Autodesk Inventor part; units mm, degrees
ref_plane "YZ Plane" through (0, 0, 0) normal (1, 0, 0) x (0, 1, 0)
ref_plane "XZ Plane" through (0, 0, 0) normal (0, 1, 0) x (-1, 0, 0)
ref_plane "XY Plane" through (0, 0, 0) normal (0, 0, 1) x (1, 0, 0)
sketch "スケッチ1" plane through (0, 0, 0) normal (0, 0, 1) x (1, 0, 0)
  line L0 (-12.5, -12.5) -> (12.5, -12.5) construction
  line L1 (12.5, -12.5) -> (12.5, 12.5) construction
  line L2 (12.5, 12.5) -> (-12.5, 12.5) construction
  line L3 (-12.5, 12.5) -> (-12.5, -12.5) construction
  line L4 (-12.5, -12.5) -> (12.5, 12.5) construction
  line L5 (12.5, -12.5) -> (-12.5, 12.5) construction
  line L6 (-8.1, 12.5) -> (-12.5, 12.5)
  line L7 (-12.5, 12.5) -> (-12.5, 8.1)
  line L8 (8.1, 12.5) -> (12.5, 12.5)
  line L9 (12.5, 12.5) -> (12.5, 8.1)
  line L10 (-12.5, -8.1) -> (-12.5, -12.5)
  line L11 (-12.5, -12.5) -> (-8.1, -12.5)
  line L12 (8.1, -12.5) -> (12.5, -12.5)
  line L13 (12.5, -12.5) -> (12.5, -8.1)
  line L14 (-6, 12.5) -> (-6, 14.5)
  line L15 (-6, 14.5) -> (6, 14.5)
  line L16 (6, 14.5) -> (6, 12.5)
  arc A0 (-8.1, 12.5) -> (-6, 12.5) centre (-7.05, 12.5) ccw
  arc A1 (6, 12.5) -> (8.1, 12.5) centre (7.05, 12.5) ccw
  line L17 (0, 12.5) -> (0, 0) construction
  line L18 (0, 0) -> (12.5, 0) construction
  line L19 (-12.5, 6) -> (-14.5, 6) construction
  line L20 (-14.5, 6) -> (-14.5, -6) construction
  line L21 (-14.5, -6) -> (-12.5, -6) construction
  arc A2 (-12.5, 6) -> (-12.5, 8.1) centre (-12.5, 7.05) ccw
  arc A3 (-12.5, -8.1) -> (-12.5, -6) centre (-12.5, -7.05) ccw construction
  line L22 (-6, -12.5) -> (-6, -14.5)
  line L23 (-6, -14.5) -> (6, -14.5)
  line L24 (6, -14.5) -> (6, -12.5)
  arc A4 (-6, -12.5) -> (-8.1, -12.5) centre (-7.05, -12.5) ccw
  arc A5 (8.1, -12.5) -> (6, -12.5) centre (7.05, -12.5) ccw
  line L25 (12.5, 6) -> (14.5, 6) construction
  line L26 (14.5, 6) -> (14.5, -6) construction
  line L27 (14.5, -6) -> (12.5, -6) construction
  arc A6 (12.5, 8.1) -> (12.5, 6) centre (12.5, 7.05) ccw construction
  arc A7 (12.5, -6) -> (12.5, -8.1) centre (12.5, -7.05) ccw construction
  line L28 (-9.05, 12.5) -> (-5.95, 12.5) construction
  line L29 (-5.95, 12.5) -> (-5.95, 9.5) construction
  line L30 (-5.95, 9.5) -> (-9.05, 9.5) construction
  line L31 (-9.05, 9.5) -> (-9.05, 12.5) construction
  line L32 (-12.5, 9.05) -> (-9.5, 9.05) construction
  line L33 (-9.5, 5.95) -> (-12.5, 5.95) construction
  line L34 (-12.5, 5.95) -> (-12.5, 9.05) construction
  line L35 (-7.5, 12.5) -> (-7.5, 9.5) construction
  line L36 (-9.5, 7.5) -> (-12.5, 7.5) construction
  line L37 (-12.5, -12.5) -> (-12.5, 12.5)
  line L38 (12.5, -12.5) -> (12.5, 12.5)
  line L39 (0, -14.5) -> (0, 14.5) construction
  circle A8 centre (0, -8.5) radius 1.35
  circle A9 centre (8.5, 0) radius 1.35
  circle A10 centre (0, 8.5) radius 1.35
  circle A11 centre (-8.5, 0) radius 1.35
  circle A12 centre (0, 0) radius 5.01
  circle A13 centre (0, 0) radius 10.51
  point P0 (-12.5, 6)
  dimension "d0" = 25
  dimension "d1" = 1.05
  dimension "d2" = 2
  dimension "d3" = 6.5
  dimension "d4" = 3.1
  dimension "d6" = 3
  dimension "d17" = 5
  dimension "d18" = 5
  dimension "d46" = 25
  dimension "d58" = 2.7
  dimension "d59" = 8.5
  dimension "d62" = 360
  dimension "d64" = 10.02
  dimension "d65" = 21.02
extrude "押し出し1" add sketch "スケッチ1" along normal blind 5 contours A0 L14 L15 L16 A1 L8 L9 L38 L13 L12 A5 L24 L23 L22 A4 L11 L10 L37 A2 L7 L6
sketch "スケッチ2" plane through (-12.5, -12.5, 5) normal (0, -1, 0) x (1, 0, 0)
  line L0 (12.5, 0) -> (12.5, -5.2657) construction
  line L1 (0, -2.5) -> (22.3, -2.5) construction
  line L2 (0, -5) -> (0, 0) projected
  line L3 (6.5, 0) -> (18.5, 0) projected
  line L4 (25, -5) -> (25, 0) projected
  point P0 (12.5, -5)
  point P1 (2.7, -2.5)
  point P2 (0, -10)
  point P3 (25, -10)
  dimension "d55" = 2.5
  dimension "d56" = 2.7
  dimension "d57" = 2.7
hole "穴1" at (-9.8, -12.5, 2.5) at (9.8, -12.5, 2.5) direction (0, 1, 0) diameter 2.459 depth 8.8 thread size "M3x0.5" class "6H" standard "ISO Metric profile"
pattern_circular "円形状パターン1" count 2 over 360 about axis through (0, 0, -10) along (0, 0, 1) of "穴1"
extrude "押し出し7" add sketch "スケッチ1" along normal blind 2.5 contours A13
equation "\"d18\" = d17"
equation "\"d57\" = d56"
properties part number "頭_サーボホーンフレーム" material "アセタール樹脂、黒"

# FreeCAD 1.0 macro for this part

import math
import FreeCAD as App
import Part
import Sketcher
from FreeCAD import Vector
Q = App.Units.Quantity

doc = App.newDocument("Part")
body = doc.addObject("PartDesign::Body", "Body")

sketch1 = doc.addObject("Sketcher::SketchObject", "Sketch")
body.addObject(sketch1)
sketch1.AttachmentSupport = (doc.XY_Plane, [""])
sketch1.MapMode = "FlatFace"
sketch1.addGeometry([
    Part.ArcOfCircle(Part.Circle(Vector(-7, 12.5, 0), Vector(0, 0, 1), 1), math.radians(180), math.radians(360)),
    Part.LineSegment(Vector(-8.1, 12.5, 0), Vector(-12.5, 12.5, 0)),
    Part.LineSegment(Vector(-12.5, 12.5, 0), Vector(-12.5, 8.1, 0)),
    Part.ArcOfCircle(Part.Circle(Vector(-12.5, 7, 0), Vector(0, 0, 1), 1), math.radians(-90), math.radians(90)),
    Part.LineSegment(Vector(-12.5, 6, 0), Vector(-12.5, -12.5, 0)),
    Part.LineSegment(Vector(-12.5, -12.5, 0), Vector(-8.1, -12.5, 0)),
    Part.ArcOfCircle(Part.Circle(Vector(-7, -12.5, 0), Vector(0, 0, 1), 1), math.radians(0), math.radians(180)),
    Part.LineSegment(Vector(-6, -12.5, 0), Vector(-6, -14.5, 0)),
    Part.LineSegment(Vector(-6, -14.5, 0), Vector(6, -14.5, 0)),
    Part.LineSegment(Vector(6, -14.5, 0), Vector(6, -12.5, 0)),
    Part.ArcOfCircle(Part.Circle(Vector(7, -12.5, 0), Vector(0, 0, 1), 1), math.radians(0), math.radians(180)),
    Part.LineSegment(Vector(8.1, -12.5, 0), Vector(12.5, -12.5, 0)),
    Part.LineSegment(Vector(12.5, -12.5, 0), Vector(12.5, 12.5, 0)),
    Part.LineSegment(Vector(12.5, 12.5, 0), Vector(8.1, 12.5, 0)),
    Part.ArcOfCircle(Part.Circle(Vector(7, 12.5, 0), Vector(0, 0, 1), 1), math.radians(180), math.radians(360)),
    Part.LineSegment(Vector(6, 12.5, 0), Vector(6, 14.5, 0)),
    Part.LineSegment(Vector(6, 14.5, 0), Vector(-6, 14.5, 0)),
    Part.LineSegment(Vector(-6, 14.5, 0), Vector(-6, 12.5, 0)),
    Part.Circle(Vector(0, 0, 0), Vector(0, 0, 1), 10.5),
], False)
sketch1.addConstraint([
    Sketcher.Constraint("Coincident", 0, 1, 1, 1),
    Sketcher.Constraint("Coincident", 1, 2, 2, 1),
    Sketcher.Constraint("Coincident", 2, 2, 3, 2),
    Sketcher.Constraint("Coincident", 3, 1, 4, 1),
    Sketcher.Constraint("Coincident", 4, 2, 5, 1),
    Sketcher.Constraint("Coincident", 5, 2, 6, 2),
    Sketcher.Constraint("Tangent", 6, 1, 7, 1),
    Sketcher.Constraint("Coincident", 7, 2, 8, 1),
    Sketcher.Constraint("Coincident", 8, 2, 9, 1),
    Sketcher.Constraint("Tangent", 9, 2, 10, 2),
    Sketcher.Constraint("Coincident", 10, 1, 11, 1),
    Sketcher.Constraint("Coincident", 11, 2, 12, 1),
    Sketcher.Constraint("Coincident", 12, 2, 13, 1),
    Sketcher.Constraint("Coincident", 13, 2, 14, 2),
    Sketcher.Constraint("Tangent", 14, 1, 15, 1),
    Sketcher.Constraint("Coincident", 15, 2, 16, 1),
    Sketcher.Constraint("Coincident", 16, 2, 17, 1),
    Sketcher.Constraint("Tangent", 17, 2, 0, 2),
    Sketcher.Constraint("Horizontal", 1),
    Sketcher.Constraint("Vertical", 2),
    Sketcher.Constraint("Vertical", 4),
    Sketcher.Constraint("Horizontal", 5),
    Sketcher.Constraint("Vertical", 7),
    Sketcher.Constraint("Horizontal", 8),
    Sketcher.Constraint("Vertical", 9),
    Sketcher.Constraint("Horizontal", 11),
    Sketcher.Constraint("Vertical", 12),
    Sketcher.Constraint("Horizontal", 13),
    Sketcher.Constraint("Vertical", 15),
    Sketcher.Constraint("Horizontal", 16),
    Sketcher.Constraint("Vertical", 17),
    Sketcher.Constraint("Coincident", 18, 3, -1, 1),
    Sketcher.Constraint("Equal", 0, 3),
    Sketcher.Constraint("Equal", 3, 6),
    Sketcher.Constraint("Equal", 6, 10),
    Sketcher.Constraint("Equal", 10, 14),
    Sketcher.Constraint("Symmetric", 0, 3, 10, 3, -1, 1),
    Sketcher.Constraint("Symmetric", 6, 3, 14, 3, -1, 1),
    Sketcher.Constraint("Symmetric", 1, 2, 11, 2, -1, 1),
    Sketcher.Constraint("Symmetric", 4, 2, 12, 2, -1, 1),
    Sketcher.Constraint("Symmetric", 6, 3, 10, 3, -2),
    Sketcher.Constraint("Horizontal", 14, 3, 0, 1),
    Sketcher.Constraint("Horizontal", 10, 3, 4, 2),
    Sketcher.Constraint("Vertical", 3, 3, 1, 2),
    Sketcher.Constraint("Equal", 13, 2),
    Sketcher.Constraint("Equal", 9, 15),
    Sketcher.Constraint("Diameter", 18, Q("21.02 mm")),
    Sketcher.Constraint("DistanceY", 7, 2, 7, 1, Q("2 mm")),
    Sketcher.Constraint("DistanceY", 12, 1, 12, 2, Q("25 mm")),
    Sketcher.Constraint("Radius", 0, Q("1.05 mm")),
    Sketcher.Constraint("DistanceX", 1, 2, 12, 2, Q("25 mm")),
    Sketcher.Constraint("DistanceY", 3, 1, 1, 2, Q("6.5 mm")),
])
pad1 = doc.addObject("PartDesign::Pad", "Pad")
body.addObject(pad1)
pad1.Profile = sketch1
pad1.Length = 5

sketch2 = doc.addObject("Sketcher::SketchObject", "Sketch001")
body.addObject(sketch2)
sketch2.AttachmentSupport = (doc.XZ_Plane, [""])
sketch2.MapMode = "FlatFace"
sketch2.AttachmentOffset = App.Placement(Vector(0, 0, 12.5), App.Rotation())
sketch2.addGeometry([
    Part.Circle(Vector(-9.8, 2.5, 0), Vector(0, 0, 1), 1.2),
    Part.Circle(Vector(9.8, 2.5, 0), Vector(0, 0, 1), 1.2),
], False)
sketch2.addConstraint([
    Sketcher.Constraint("Equal", 0, 1),
    Sketcher.Constraint("Symmetric", 0, 3, 1, 3, -2),
    Sketcher.Constraint("Diameter", 0, Q("2.459 mm")),
    Sketcher.Constraint("DistanceX", 0, 3, -1, 1, Q("9.8 mm")),
    Sketcher.Constraint("DistanceY", -1, 1, 0, 3, Q("2.5 mm")),
])
doc.recompute()
hole = doc.addObject("PartDesign::Hole", "Hole")
body.addObject(hole)
hole.Profile = sketch2
hole.ThreadType = "None"
hole.Diameter = 2.459
hole.DepthType = "Dimension"
hole.Depth = 8.8
hole.DrillPoint = "Flat"
doc.recompute()

polarpattern = doc.addObject("PartDesign::PolarPattern", "PolarPattern")
body.addObject(polarpattern)
polarpattern.Originals = [hole]
polarpattern.Axis = (doc.Z_Axis, [""])
polarpattern.Angle = 360
polarpattern.Occurrences = 2
body.Tip = polarpattern

sketch3 = doc.addObject("Sketcher::SketchObject", "Sketch002")
body.addObject(sketch3)
sketch3.AttachmentSupport = (doc.XY_Plane, [""])
sketch3.MapMode = "FlatFace"
sketch3.addGeometry([
    Part.Circle(Vector(0, 0, 0), Vector(0, 0, 1), 10.5),
    Part.Circle(Vector(0, -8.5, 0), Vector(0, 0, 1), 1.4),
    Part.Circle(Vector(-8.5, 0, 0), Vector(0, 0, 1), 1.4),
    Part.Circle(Vector(0, 0, 0), Vector(0, 0, 1), 5),
    Part.Circle(Vector(8.5, 0, 0), Vector(0, 0, 1), 1.4),
    Part.Circle(Vector(0, 8.5, 0), Vector(0, 0, 1), 1.4),
], False)
sketch3.addConstraint([
    Sketcher.Constraint("Coincident", 0, 3, -1, 1),
    Sketcher.Constraint("Coincident", 3, 3, -1, 1),
    Sketcher.Constraint("Equal", 1, 2),
    Sketcher.Constraint("Equal", 2, 4),
    Sketcher.Constraint("Equal", 4, 5),
    Sketcher.Constraint("Symmetric", 2, 3, 4, 3, -1, 1),
    Sketcher.Constraint("Symmetric", 1, 3, 5, 3, -1, 1),
    Sketcher.Constraint("PointOnObject", 1, 3, -2),
    Sketcher.Constraint("PointOnObject", 2, 3, -1),
    Sketcher.Constraint("Diameter", 1, Q("2.7 mm")),
    Sketcher.Constraint("Diameter", 0, Q("21.02 mm")),
    Sketcher.Constraint("Diameter", 3, Q("10.02 mm")),
    Sketcher.Constraint("DistanceY", 1, 3, -1, 1, Q("8.5 mm")),
    Sketcher.Constraint("DistanceX", 2, 3, -1, 1, Q("8.5 mm")),
])
pad2 = doc.addObject("PartDesign::Pad", "Pad001")
body.addObject(pad2)
pad2.Profile = sketch3
pad2.Length = 2.5

doc.recompute()
